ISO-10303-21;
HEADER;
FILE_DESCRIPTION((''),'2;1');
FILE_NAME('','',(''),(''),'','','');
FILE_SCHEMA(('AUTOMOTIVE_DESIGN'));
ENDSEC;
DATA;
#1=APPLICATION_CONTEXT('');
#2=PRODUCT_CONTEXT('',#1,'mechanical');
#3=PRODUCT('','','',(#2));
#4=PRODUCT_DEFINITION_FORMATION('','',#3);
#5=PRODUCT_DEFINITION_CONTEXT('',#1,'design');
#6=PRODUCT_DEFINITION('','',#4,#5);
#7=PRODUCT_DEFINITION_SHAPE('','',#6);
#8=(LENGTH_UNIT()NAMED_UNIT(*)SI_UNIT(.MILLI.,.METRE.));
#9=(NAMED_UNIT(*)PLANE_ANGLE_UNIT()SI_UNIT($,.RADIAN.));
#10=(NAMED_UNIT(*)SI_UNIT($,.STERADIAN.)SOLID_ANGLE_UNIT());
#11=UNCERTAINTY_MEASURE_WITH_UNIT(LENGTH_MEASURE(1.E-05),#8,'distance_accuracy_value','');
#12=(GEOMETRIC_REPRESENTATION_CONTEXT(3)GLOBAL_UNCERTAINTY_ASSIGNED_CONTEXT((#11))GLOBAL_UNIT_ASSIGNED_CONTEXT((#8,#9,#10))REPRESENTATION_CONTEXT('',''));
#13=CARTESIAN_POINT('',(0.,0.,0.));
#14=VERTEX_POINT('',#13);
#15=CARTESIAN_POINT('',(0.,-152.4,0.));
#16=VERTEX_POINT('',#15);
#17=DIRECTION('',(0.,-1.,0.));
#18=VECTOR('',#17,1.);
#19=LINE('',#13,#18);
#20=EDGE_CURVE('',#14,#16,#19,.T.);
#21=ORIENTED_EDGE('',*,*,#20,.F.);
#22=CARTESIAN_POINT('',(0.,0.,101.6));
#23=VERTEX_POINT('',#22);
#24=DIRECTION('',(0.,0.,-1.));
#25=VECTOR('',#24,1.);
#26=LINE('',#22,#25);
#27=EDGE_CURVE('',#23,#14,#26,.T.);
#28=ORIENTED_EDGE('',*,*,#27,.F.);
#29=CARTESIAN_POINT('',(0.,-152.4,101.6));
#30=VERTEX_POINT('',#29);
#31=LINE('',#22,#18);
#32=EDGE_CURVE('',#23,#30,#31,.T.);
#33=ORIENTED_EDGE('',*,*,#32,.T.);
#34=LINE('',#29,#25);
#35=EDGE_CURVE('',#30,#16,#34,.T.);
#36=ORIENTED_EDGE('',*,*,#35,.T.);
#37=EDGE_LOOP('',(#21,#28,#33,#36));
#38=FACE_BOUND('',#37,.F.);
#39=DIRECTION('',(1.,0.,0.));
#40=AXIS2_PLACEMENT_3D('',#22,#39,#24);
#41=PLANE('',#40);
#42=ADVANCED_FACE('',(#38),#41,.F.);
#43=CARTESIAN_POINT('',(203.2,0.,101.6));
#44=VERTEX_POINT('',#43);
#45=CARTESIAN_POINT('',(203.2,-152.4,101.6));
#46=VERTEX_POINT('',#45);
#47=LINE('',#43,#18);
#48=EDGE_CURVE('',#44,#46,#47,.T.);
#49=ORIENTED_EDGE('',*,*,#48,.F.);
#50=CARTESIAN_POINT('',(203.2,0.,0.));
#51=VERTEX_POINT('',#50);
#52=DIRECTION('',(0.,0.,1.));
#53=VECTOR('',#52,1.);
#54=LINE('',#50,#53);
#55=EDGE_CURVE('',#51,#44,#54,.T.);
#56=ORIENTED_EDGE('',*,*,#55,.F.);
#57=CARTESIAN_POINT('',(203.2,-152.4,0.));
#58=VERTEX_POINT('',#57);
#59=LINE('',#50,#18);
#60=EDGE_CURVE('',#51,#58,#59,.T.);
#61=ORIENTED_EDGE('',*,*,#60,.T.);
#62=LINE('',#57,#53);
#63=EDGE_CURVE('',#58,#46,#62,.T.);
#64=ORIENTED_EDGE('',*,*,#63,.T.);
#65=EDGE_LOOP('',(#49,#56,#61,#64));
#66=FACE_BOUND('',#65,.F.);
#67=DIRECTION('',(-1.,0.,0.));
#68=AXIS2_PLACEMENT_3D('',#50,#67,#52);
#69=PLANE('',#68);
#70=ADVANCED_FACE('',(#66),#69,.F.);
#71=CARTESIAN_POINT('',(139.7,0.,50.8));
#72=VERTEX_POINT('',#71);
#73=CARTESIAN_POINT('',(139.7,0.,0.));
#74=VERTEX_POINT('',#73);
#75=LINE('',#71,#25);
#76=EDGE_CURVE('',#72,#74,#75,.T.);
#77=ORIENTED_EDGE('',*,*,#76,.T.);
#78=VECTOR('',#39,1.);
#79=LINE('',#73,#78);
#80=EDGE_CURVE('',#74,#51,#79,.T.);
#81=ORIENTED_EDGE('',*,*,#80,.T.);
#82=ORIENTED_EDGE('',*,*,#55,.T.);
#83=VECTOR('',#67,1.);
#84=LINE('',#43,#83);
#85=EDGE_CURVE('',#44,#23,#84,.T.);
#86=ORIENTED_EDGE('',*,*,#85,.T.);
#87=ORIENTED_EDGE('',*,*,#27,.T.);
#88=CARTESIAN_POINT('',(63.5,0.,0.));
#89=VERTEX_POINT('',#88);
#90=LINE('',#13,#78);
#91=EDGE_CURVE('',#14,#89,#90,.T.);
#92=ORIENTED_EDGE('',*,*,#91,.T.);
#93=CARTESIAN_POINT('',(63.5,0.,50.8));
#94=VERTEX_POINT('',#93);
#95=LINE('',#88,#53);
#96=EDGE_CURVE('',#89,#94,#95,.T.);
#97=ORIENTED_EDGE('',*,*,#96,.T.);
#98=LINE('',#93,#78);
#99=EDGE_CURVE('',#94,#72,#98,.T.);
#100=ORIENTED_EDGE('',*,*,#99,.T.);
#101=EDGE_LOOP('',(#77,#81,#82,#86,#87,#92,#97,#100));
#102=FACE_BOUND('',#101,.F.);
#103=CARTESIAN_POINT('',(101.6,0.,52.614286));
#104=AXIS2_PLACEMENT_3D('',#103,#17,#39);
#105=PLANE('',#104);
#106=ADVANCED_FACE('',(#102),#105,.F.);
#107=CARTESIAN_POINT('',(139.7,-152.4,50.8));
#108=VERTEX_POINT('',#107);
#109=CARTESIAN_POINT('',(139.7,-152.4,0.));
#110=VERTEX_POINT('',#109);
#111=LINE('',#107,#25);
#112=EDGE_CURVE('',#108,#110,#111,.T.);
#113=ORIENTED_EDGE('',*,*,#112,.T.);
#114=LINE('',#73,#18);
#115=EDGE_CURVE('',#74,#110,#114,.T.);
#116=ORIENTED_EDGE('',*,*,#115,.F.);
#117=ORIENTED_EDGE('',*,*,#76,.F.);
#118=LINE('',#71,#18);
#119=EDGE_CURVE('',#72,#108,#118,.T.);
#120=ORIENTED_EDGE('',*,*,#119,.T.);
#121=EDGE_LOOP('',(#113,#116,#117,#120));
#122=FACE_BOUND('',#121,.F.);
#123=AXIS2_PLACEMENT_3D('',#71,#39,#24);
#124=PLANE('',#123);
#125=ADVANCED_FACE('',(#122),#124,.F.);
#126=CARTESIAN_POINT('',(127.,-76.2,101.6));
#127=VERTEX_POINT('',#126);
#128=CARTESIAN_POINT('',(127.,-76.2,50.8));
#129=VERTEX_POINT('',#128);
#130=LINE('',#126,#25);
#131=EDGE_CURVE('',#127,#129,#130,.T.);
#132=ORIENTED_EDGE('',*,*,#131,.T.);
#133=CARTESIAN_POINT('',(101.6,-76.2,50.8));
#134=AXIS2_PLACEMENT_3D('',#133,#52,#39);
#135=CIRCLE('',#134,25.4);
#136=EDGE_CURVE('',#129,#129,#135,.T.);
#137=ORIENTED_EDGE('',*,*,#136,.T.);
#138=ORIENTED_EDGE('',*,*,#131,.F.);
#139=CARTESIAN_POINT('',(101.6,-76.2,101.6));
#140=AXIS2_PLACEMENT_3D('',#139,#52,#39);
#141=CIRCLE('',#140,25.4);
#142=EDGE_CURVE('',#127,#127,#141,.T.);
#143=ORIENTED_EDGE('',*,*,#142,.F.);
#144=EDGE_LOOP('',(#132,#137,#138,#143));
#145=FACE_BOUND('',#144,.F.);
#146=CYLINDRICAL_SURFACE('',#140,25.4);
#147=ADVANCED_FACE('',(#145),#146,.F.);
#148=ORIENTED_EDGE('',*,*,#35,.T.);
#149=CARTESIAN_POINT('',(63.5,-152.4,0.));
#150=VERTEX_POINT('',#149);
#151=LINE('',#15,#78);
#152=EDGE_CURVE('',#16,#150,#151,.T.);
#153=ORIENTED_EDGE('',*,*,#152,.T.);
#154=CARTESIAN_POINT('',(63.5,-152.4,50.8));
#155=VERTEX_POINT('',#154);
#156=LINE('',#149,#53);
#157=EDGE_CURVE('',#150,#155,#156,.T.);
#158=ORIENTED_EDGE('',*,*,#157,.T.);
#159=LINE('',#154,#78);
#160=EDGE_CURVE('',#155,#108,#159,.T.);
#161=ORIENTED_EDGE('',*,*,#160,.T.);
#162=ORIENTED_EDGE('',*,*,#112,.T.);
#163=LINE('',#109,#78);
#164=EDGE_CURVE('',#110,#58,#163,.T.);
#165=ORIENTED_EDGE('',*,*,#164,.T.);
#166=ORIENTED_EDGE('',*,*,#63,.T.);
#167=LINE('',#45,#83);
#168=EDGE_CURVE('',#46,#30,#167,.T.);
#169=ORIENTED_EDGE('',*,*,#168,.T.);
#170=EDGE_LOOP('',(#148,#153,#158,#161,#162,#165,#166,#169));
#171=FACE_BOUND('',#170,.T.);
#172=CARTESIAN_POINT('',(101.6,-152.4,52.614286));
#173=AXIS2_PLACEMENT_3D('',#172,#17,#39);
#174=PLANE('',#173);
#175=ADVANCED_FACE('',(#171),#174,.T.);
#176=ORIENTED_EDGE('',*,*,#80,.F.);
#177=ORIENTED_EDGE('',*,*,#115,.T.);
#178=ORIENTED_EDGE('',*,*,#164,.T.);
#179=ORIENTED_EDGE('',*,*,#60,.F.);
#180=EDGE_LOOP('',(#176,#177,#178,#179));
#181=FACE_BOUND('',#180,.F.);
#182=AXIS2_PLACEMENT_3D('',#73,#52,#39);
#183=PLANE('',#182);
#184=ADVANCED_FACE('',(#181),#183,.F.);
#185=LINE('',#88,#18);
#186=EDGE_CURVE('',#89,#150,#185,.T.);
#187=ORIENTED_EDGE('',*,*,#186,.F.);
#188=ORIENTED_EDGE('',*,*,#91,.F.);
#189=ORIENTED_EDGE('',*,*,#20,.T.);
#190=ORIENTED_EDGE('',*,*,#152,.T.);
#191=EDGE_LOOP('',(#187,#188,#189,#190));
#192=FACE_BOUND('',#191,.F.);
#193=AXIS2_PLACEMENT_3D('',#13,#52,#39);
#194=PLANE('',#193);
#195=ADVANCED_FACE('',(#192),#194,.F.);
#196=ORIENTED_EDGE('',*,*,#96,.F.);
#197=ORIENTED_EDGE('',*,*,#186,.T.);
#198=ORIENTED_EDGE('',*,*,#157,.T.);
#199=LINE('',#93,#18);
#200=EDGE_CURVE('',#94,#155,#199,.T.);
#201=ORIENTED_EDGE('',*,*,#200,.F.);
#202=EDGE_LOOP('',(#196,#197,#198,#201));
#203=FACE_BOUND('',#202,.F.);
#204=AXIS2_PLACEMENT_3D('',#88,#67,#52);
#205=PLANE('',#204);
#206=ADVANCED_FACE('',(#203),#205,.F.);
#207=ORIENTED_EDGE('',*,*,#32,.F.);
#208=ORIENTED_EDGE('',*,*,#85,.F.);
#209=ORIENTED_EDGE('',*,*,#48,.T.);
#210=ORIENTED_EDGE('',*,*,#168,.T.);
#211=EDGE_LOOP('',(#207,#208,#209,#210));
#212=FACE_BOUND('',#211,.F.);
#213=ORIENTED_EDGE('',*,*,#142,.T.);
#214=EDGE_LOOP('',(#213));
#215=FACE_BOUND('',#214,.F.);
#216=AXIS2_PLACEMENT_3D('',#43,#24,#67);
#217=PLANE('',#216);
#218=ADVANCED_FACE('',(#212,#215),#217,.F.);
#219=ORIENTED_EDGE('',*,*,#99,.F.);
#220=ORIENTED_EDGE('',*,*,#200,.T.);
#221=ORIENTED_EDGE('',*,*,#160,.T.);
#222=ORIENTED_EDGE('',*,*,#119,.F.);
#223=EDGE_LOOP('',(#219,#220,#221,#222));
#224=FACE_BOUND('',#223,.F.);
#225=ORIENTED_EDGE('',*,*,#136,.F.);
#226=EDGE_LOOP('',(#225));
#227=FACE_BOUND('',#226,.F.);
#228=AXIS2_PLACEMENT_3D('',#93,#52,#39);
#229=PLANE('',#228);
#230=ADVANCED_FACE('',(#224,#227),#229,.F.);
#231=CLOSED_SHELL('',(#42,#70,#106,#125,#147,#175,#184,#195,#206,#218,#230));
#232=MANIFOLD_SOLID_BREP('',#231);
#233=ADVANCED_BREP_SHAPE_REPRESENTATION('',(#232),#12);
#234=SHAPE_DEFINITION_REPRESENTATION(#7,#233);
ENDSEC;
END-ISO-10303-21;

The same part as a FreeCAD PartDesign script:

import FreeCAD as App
import Part
import Sketcher
from FreeCAD import Vector
Q = App.Units.Quantity


def add_polygon(sketch, points):
    """Adds a closed chain of lines whose ends are joined by coincident constraints."""
    first, n = sketch.GeometryCount, len(points)
    for a, b in zip(points, points[1:] + points[:1]):
        sketch.addGeometry(Part.LineSegment(App.Vector(*a, 0), App.Vector(*b, 0)), False)
    for i in range(n):
        sketch.addConstraint(Sketcher.Constraint("Coincident", first + i, 2, first + (i + 1) % n, 1))

doc = App.newDocument("Part")
body = doc.addObject("PartDesign::Body", "Body")

# Sketch on XZ plane
sketch1 = doc.addObject("Sketcher::SketchObject", "Sketch")
body.addObject(sketch1)
sketch1.AttachmentSupport = (doc.XZ_Plane, [""])
sketch1.MapMode = "FlatFace"
add_polygon(sketch1, [(0, 102), (0, 0), (64, 0), (64, 51), (140, 51), (140, 0), (203, 0), (203, 102)])  # lines 0-7
sketch1.addConstraint(Sketcher.Constraint("Vertical", 0))
sketch1.addConstraint(Sketcher.Constraint("Horizontal", 1))
sketch1.addConstraint(Sketcher.Constraint("Vertical", 2))
sketch1.addConstraint(Sketcher.Constraint("Horizontal", 3))
sketch1.addConstraint(Sketcher.Constraint("Vertical", 4))
sketch1.addConstraint(Sketcher.Constraint("Horizontal", 5))
sketch1.addConstraint(Sketcher.Constraint("Vertical", 6))
sketch1.addConstraint(Sketcher.Constraint("Horizontal", 7))
sketch1.addConstraint(Sketcher.Constraint("Coincident", 0, 2, -1, 1))
sketch1.addConstraint(Sketcher.Constraint("PointOnObject", 4, 2, -1))
sketch1.addConstraint(Sketcher.Constraint("Equal", 1, 5))
sketch1.addConstraint(Sketcher.Constraint("DistanceX", 3, 1, 3, 2, Q("3 in")))
sketch1.addConstraint(Sketcher.Constraint("DistanceX", 7, 2, 7, 1, Q("8 in")))
sketch1.addConstraint(Sketcher.Constraint("DistanceY", 0, 2, 0, 1, Q("4 in")))
sketch1.addConstraint(Sketcher.Constraint("DistanceY", 2, 1, 2, 2, Q("2 in")))
pad1 = doc.addObject("PartDesign::Pad", "Pad")
body.addObject(pad1)
pad1.Profile = sketch1
pad1.Length = Q("6 in")

# Sketch on XY plane
sketch2 = doc.addObject("Sketcher::SketchObject", "Sketch001")
body.addObject(sketch2)
sketch2.AttachmentSupport = (doc.XY_Plane, [""])
sketch2.MapMode = "FlatFace"
sketch2.AttachmentOffset = App.Placement(Vector(0, 0, 4 * 25.4), App.Rotation())
sketch2.addGeometry(Part.Circle(Vector(102, -76, 0), Vector(0, 0, 1), 25), False)
sketch2.addConstraint(Sketcher.Constraint("Diameter", 0, Q("2 in")))
sketch2.addConstraint(Sketcher.Constraint("DistanceX", -1, 1, 0, 3, Q("4 in")))
sketch2.addConstraint(Sketcher.Constraint("DistanceY", 0, 3, -1, 1, Q("3 in")))
pocket1 = doc.addObject("PartDesign::Pocket", "Pocket")
body.addObject(pocket1)
pocket1.Profile = sketch2
pocket1.Type = "ThroughAll"

doc.recompute()
